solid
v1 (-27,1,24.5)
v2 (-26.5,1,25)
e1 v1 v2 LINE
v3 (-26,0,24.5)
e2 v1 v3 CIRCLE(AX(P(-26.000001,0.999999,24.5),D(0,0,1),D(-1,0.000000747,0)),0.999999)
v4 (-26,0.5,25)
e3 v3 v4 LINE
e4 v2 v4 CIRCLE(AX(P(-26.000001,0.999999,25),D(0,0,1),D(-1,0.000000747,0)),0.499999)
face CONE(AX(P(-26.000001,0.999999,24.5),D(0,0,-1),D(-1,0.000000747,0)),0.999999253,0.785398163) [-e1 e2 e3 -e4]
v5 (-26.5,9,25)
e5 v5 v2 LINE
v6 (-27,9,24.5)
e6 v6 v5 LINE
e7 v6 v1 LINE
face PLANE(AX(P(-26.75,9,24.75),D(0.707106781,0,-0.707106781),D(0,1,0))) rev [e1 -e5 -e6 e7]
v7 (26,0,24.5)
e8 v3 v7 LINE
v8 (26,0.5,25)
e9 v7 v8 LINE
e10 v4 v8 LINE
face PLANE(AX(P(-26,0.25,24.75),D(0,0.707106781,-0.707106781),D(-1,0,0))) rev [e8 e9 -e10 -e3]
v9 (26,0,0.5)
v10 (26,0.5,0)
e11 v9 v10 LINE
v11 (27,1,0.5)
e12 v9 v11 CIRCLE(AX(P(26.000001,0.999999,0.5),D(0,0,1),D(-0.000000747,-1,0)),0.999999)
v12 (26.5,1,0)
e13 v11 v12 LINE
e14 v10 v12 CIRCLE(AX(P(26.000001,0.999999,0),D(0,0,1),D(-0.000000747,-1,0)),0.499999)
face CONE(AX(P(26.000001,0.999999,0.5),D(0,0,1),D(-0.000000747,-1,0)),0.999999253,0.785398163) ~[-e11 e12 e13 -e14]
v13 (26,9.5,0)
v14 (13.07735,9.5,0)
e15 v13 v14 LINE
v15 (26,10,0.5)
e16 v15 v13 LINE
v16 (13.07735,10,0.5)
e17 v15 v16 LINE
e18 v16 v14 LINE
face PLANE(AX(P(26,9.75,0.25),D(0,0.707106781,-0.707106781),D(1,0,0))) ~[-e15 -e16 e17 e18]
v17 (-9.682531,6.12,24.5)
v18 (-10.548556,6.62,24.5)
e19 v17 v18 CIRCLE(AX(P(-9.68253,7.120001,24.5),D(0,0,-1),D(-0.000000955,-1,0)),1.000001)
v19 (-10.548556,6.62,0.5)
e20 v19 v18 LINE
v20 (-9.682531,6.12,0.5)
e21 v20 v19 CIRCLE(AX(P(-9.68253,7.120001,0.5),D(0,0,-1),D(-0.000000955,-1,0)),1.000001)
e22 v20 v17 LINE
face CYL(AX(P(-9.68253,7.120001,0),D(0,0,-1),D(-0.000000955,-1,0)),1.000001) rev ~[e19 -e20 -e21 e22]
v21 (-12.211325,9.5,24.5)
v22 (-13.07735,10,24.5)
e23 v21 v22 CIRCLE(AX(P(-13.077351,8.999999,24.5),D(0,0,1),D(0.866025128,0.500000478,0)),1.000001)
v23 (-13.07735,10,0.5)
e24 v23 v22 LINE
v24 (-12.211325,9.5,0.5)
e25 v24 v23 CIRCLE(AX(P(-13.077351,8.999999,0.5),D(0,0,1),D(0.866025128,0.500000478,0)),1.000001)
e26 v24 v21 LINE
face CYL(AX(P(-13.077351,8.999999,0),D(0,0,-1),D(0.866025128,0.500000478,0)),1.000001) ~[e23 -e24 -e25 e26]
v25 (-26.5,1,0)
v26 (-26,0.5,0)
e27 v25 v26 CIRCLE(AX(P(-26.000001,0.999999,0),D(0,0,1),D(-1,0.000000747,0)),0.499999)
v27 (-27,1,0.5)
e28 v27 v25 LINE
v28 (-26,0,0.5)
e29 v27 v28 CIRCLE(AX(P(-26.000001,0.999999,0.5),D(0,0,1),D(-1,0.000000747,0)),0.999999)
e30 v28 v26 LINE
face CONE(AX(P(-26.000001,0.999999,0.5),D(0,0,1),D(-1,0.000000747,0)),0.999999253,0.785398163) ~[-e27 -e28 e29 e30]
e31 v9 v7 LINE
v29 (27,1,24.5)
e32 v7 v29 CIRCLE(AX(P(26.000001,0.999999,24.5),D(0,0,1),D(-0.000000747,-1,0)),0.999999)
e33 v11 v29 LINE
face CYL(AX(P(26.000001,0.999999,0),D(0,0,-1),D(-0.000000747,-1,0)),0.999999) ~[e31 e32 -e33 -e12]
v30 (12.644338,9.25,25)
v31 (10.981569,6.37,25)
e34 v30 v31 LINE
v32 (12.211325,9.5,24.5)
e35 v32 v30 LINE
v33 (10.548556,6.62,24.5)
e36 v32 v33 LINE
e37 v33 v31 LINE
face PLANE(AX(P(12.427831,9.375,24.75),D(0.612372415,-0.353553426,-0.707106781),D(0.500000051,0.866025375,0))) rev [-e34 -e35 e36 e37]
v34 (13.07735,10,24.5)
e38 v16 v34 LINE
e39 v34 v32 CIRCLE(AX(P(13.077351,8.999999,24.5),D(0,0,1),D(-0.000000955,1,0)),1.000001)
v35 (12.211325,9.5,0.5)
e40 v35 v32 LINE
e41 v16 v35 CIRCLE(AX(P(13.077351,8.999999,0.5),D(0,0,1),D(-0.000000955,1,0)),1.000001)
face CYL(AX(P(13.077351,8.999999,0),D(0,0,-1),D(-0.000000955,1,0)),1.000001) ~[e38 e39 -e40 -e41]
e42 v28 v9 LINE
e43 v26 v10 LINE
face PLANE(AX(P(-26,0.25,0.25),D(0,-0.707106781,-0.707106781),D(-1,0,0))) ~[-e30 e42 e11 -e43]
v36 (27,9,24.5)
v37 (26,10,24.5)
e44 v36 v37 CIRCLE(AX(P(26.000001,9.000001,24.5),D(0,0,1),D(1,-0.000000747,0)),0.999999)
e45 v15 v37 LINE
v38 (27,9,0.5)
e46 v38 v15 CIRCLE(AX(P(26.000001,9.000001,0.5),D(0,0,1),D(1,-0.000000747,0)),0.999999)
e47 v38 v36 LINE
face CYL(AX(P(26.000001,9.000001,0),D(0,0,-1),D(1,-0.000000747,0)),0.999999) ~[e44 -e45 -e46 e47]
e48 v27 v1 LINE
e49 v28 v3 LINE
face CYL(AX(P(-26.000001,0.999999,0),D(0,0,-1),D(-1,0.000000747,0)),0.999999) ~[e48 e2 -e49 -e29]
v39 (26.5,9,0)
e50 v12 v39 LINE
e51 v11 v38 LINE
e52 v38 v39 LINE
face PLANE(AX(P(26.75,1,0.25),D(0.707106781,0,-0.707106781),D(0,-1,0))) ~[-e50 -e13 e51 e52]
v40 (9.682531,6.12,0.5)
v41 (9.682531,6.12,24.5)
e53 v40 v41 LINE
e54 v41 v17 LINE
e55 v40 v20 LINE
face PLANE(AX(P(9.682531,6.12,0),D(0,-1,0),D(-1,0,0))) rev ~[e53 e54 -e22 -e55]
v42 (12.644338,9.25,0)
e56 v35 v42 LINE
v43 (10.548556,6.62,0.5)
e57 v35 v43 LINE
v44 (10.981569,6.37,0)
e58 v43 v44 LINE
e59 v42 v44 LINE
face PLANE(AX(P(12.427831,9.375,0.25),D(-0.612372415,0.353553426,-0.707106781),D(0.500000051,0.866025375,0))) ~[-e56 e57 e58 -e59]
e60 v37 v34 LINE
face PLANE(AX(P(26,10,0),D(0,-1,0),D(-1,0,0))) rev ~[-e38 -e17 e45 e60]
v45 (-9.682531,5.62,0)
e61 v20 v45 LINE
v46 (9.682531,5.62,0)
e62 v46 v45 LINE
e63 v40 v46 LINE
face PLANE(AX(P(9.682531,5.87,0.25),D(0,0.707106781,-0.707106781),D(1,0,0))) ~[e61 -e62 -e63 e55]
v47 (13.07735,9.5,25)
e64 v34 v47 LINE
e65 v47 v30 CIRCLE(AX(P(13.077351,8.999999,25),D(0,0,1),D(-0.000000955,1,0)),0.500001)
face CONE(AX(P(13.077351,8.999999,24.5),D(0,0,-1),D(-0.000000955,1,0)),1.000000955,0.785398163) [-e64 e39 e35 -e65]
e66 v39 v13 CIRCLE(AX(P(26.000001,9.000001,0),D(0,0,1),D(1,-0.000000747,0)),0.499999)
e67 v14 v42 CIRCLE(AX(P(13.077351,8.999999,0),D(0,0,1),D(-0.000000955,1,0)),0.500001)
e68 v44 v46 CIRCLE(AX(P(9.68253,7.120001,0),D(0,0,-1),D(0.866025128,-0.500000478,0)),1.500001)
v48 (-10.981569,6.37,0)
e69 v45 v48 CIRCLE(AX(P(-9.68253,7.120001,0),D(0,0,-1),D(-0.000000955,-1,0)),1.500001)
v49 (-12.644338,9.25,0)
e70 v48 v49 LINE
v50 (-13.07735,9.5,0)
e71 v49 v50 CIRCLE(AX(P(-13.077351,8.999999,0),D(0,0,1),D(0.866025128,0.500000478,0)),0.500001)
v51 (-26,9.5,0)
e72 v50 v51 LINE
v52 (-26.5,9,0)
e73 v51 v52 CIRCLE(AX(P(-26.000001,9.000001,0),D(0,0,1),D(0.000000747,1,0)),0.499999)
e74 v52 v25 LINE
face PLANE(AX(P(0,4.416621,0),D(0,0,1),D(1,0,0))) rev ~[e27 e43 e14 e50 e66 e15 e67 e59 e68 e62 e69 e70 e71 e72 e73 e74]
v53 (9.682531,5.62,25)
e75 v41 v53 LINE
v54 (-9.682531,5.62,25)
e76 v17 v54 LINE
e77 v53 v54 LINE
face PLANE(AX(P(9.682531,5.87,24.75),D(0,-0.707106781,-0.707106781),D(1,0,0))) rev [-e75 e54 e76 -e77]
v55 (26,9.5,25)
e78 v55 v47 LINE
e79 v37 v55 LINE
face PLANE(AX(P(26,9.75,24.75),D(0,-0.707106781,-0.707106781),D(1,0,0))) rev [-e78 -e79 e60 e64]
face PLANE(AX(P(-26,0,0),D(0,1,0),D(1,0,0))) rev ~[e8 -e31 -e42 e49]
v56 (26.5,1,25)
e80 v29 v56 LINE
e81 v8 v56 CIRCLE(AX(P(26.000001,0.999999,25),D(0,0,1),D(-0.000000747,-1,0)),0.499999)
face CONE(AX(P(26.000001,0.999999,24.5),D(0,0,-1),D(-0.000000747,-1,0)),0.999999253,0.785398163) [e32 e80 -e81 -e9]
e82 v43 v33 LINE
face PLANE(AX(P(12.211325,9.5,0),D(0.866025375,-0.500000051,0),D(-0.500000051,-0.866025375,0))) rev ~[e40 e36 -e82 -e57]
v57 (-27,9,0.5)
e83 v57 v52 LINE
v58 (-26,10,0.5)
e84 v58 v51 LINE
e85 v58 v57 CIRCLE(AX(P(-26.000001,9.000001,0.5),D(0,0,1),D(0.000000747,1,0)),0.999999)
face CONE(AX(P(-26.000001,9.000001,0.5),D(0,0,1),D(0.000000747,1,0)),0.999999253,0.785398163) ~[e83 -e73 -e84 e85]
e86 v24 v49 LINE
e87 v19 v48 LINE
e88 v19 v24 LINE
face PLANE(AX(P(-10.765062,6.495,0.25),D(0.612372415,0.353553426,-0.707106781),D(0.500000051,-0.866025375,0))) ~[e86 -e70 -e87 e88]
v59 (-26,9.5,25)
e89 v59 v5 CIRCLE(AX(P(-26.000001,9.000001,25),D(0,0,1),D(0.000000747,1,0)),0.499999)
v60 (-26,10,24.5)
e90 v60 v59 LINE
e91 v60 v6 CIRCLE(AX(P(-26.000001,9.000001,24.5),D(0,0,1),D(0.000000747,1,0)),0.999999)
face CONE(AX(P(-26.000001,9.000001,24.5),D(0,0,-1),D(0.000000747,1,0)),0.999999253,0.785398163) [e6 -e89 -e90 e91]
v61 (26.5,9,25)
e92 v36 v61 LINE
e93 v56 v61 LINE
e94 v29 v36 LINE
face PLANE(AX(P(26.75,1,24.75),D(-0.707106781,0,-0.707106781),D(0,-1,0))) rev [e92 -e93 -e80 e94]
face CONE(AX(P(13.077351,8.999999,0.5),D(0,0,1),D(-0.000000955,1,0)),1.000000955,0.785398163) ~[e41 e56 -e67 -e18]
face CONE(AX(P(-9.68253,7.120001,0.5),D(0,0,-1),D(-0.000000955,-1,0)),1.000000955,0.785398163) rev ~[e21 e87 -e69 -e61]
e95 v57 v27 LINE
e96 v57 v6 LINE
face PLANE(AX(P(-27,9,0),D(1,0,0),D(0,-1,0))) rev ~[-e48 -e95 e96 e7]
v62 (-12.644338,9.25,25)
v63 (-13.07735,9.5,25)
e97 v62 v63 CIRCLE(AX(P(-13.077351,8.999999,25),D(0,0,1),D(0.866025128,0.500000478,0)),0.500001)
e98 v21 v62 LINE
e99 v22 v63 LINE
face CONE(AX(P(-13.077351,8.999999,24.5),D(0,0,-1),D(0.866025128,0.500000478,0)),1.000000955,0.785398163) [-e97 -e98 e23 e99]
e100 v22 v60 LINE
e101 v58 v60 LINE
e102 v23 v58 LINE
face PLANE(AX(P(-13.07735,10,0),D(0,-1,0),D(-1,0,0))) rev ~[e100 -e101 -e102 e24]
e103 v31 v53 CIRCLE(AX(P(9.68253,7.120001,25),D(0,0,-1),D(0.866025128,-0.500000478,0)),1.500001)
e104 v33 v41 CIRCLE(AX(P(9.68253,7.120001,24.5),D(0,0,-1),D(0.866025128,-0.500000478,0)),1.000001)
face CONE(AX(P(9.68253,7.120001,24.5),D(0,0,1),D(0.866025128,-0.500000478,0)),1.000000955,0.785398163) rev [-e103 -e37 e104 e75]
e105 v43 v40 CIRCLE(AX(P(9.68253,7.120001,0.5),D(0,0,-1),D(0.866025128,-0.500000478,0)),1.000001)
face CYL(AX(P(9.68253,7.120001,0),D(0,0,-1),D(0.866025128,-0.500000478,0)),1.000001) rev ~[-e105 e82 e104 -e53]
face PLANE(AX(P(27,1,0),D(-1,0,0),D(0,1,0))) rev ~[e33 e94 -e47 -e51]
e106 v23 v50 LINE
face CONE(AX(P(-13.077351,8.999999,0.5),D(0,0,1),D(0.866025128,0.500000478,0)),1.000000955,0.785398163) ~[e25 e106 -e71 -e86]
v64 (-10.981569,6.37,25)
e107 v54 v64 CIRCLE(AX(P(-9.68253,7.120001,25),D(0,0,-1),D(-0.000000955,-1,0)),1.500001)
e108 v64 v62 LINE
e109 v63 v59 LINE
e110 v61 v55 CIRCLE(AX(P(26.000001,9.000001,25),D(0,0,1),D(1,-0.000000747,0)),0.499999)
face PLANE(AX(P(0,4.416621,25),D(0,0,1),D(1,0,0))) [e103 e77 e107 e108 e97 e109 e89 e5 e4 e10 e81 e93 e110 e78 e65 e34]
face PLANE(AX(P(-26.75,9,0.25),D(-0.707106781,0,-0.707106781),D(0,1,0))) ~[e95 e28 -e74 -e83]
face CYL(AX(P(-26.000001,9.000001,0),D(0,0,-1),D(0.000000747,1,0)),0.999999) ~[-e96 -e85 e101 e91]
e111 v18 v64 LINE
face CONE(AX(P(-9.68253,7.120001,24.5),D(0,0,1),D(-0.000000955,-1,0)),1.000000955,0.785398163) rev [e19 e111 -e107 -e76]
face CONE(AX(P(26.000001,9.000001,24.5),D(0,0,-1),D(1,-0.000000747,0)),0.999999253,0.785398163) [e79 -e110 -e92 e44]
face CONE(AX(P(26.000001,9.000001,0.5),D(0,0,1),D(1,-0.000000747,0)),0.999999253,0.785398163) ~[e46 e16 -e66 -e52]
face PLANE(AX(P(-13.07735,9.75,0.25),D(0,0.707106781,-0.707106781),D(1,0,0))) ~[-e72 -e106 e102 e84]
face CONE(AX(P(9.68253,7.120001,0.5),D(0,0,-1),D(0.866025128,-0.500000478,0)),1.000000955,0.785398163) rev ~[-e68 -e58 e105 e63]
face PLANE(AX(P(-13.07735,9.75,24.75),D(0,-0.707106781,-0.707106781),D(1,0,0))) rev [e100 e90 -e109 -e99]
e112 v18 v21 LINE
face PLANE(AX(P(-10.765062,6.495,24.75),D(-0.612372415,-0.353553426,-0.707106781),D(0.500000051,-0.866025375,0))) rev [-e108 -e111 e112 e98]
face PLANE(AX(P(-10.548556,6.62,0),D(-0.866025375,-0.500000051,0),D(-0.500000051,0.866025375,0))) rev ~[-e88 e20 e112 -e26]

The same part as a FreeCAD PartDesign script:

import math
import FreeCAD as App
import Part
import Sketcher
from FreeCAD import Vector
Q = App.Units.Quantity


def edges_at(feature, points):
    """Names of the edges that pass closest to the given points."""
    edges = feature.Shape.Edges
    near = lambda p: min(range(len(edges)), key=lambda i: edges[i].distToShape(Part.Vertex(*p))[0])
    return sorted({f"Edge{near(p) + 1}" for p in points})

doc = App.newDocument("Part")
params = doc.addObject("Spreadsheet::Sheet", "Params")
for row, (alias, value) in enumerate([
    ("sketch1_radius", "0.999999 mm"),
    ("sketch1_width", "52 mm"),
    ("sketch1_height", "8 mm"),
    ("pad1_length", "25 mm"),
    ("chamfer_size", "0.5 mm"),
], start=1):
    params.set(f"A{row}", alias)
    params.set(f"B{row}", "=" + value)
    params.setAlias(f"B{row}", alias)

body = doc.addObject("PartDesign::Body", "Body")

# Sketch on XY plane
sketch1 = body.newObject("Sketcher::SketchObject", "Sketch")
sketch1.AttachmentSupport = (doc.getObject("XY_Plane"), [""])
sketch1.MapMode = "FlatFace"
sketch1.addGeometry([
    Part.LineSegment(Vector(-26, 0, 0), Vector(26, 0, 0)),  # 0
    Part.ArcOfCircle(Part.Circle(Vector(26, 1, 0), Vector(0, 0, 1), 1), math.radians(-90), math.radians(0)),  # 1
    Part.LineSegment(Vector(27, 1, 0), Vector(27, 9, 0)),  # 2
    Part.ArcOfCircle(Part.Circle(Vector(26, 9, 0), Vector(0, 0, 1), 1), math.radians(0), math.radians(90)),  # 3
    Part.LineSegment(Vector(26, 10, 0), Vector(13.1, 10, 0)),  # 4
    Part.ArcOfCircle(Part.Circle(Vector(13.1, 9, 0), Vector(0, 0, 1), 1), math.radians(90), math.radians(150)),  # 5
    Part.LineSegment(Vector(12.2, 9.5, 0), Vector(10.5, 6.6, 0)),  # 6
    Part.ArcOfCircle(Part.Circle(Vector(9.7, 7.1, 0), Vector(0, 0, 1), 1), math.radians(-90), math.radians(-30)),  # 7
    Part.LineSegment(Vector(9.7, 6.1, 0), Vector(-9.7, 6.1, 0)),  # 8
    Part.ArcOfCircle(Part.Circle(Vector(-9.7, 7.1, 0), Vector(0, 0, 1), 1), math.radians(-150), math.radians(-90)),  # 9
    Part.LineSegment(Vector(-10.5, 6.6, 0), Vector(-12.2, 9.5, 0)),  # 10
    Part.ArcOfCircle(Part.Circle(Vector(-13.1, 9, 0), Vector(0, 0, 1), 1), math.radians(30), math.radians(90)),  # 11
    Part.LineSegment(Vector(-13.1, 10, 0), Vector(-26, 10, 0)),  # 12
    Part.ArcOfCircle(Part.Circle(Vector(-26, 9, 0), Vector(0, 0, 1), 1), math.radians(90), math.radians(180)),  # 13
    Part.LineSegment(Vector(-27, 9, 0), Vector(-27, 1, 0)),  # 14
    Part.ArcOfCircle(Part.Circle(Vector(-26, 1, 0), Vector(0, 0, 1), 1), math.radians(180), math.radians(270)),  # 15
], False)
sketch1.addConstraint([
    Sketcher.Constraint("Tangent", 0, 2, 1, 1),
    Sketcher.Constraint("Tangent", 1, 2, 2, 1),
    Sketcher.Constraint("Tangent", 2, 2, 3, 1),
    Sketcher.Constraint("Tangent", 3, 2, 4, 1),
    Sketcher.Constraint("Tangent", 4, 2, 5, 1),
    Sketcher.Constraint("Tangent", 5, 2, 6, 1),
    Sketcher.Constraint("Tangent", 6, 2, 7, 2),
    Sketcher.Constraint("Tangent", 7, 1, 8, 1),
    Sketcher.Constraint("Tangent", 8, 2, 9, 2),
    Sketcher.Constraint("Tangent", 9, 1, 10, 1),
    Sketcher.Constraint("Tangent", 10, 2, 11, 1),
    Sketcher.Constraint("Tangent", 11, 2, 12, 1),
    Sketcher.Constraint("Tangent", 12, 2, 13, 1),
    Sketcher.Constraint("Tangent", 13, 2, 14, 1),
    Sketcher.Constraint("Tangent", 14, 2, 15, 1),
    Sketcher.Constraint("Tangent", 15, 2, 0, 1),
    Sketcher.Constraint("Horizontal", 0),
    Sketcher.Constraint("Vertical", 2),
    Sketcher.Constraint("Horizontal", 4),
    Sketcher.Constraint("Horizontal", 8),
    Sketcher.Constraint("Horizontal", 12),
    Sketcher.Constraint("Vertical", 14),
    Sketcher.Constraint("Equal", 1, 3),
    Sketcher.Constraint("Equal", 3, 5),
    Sketcher.Constraint("Equal", 5, 7),
    Sketcher.Constraint("Equal", 7, 9),
    Sketcher.Constraint("Equal", 9, 11),
    Sketcher.Constraint("Equal", 11, 13),
    Sketcher.Constraint("Equal", 13, 15),
    Sketcher.Constraint("Symmetric", 0, 2, 15, 2, -1, 1),
    Sketcher.Constraint("Symmetric", 5, 3, 11, 3, -2),
    Sketcher.Constraint("Horizontal", 6, 2, 9, 1),
    Sketcher.Constraint("Radius", 1, 0.999999),
    Sketcher.Constraint("DistanceX", 0, 1, 0, 2, 52.0),
    Sketcher.Constraint("DistanceY", 2, 1, 2, 2, 8.0),
    Sketcher.Constraint("Angle", 6, Q("-120.000003 deg")),
    Sketcher.Constraint("DistanceY", -1, 1, 7, 3, 7.120001),
    Sketcher.Constraint("DistanceX", 4, 2, 4, 1, 12.92265),
])
sketch1.setExpression("Constraints[32]", "Params.sketch1_radius")
sketch1.setExpression("Constraints[33]", "Params.sketch1_width")
sketch1.setExpression("Constraints[34]", "Params.sketch1_height")
pad1 = body.newObject("PartDesign::Pad", "Pad")
pad1.Profile = sketch1
pad1.setExpression("Length", "Params.pad1_length")
doc.recompute()

chamfer = body.newObject("PartDesign::Chamfer", "Chamfer")
chamfer.Base = (pad1, edges_at(pad1, [(19.539, 10, 25), (-19.539, 10, 0)]))
chamfer.setExpression("Size", "Params.chamfer_size")

doc.recompute()
